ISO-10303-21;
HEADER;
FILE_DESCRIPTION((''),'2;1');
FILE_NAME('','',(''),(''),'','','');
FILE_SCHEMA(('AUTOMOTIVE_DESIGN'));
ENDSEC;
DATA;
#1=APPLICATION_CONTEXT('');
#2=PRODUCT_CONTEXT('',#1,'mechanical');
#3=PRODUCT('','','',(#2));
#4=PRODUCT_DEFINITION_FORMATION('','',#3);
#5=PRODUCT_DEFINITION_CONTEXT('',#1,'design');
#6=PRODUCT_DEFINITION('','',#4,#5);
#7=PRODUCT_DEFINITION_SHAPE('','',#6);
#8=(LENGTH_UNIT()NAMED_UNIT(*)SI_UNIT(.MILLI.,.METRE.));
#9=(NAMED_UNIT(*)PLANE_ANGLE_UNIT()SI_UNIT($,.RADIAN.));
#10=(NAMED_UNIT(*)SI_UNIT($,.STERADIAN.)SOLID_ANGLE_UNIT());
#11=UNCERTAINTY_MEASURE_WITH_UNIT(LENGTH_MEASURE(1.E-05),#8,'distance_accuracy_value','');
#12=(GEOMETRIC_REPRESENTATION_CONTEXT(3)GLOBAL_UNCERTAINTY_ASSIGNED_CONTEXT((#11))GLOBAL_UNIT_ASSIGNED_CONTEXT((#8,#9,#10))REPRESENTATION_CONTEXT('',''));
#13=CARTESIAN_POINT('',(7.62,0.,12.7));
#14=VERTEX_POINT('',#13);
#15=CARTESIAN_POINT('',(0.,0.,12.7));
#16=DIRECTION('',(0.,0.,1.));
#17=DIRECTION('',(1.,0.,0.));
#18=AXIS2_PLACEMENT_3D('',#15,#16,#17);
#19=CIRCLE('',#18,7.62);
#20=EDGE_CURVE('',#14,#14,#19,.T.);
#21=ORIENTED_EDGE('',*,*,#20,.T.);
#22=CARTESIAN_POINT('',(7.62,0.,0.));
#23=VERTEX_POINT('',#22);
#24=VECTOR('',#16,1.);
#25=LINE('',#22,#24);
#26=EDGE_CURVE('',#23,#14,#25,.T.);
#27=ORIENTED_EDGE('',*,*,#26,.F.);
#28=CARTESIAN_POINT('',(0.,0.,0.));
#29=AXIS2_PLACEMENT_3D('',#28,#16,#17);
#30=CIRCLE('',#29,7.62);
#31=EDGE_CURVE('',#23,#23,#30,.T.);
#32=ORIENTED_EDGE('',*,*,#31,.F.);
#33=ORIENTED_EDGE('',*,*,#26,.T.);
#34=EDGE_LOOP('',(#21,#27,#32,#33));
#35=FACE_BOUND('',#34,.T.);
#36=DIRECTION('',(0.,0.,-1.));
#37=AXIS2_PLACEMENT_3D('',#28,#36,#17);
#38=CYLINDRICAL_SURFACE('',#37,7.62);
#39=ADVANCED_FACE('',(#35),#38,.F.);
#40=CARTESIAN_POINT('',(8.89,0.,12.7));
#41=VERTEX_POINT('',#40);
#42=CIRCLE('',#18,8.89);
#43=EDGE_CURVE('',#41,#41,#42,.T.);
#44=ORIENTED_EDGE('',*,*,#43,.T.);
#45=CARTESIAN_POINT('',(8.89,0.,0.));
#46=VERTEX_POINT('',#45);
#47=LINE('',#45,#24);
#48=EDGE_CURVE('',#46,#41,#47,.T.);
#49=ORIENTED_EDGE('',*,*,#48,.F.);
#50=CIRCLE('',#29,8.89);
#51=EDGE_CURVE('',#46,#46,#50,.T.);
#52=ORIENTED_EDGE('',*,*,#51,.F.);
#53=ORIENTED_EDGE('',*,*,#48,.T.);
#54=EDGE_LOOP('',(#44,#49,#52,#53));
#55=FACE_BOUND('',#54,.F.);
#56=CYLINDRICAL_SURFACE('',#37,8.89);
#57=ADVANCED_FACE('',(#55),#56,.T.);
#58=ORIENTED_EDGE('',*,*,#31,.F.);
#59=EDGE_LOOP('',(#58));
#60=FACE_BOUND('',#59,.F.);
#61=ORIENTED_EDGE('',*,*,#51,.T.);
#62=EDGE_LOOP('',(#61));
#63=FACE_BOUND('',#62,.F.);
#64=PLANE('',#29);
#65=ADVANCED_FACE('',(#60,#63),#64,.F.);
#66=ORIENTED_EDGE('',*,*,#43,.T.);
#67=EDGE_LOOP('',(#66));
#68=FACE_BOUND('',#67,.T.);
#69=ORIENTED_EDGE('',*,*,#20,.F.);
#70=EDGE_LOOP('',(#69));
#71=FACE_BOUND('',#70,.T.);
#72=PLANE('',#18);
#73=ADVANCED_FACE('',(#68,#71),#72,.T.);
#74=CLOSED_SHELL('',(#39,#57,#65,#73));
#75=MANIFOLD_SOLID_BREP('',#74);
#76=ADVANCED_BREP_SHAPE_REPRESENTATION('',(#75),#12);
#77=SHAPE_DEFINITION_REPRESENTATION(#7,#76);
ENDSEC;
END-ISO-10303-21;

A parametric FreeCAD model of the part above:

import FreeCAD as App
import Part
import Sketcher
Q = App.Units.Quantity

doc = App.newDocument("Part")
body = doc.addObject("PartDesign::Body", "Body")

# Sketch on XY plane
sketch1 = body.newObject("Sketcher::SketchObject", "Sketch")
sketch1.AttachmentSupport = (doc.getObject("XY_Plane"), [""])
sketch1.MapMode = "FlatFace"
sketch1.addGeometry([
    Part.Circle(App.Vector(0, 0, 0), App.Vector(0, 0, 1), 9),
    Part.Circle(App.Vector(0, 0, 0), App.Vector(0, 0, 1), 8),
], False)
sketch1.addConstraint([
    Sketcher.Constraint("Coincident", 0, 3, -1, 1),
    Sketcher.Constraint("Coincident", 1, 3, -1, 1),
    Sketcher.Constraint("Diameter", 0, Q("0.7 in")),
    Sketcher.Constraint("Diameter", 1, Q("0.6 in")),
])
pad1 = body.newObject("PartDesign::Pad", "Pad")
pad1.Profile = sketch1
pad1.Length = Q("0.5 in")

doc.recompute()
